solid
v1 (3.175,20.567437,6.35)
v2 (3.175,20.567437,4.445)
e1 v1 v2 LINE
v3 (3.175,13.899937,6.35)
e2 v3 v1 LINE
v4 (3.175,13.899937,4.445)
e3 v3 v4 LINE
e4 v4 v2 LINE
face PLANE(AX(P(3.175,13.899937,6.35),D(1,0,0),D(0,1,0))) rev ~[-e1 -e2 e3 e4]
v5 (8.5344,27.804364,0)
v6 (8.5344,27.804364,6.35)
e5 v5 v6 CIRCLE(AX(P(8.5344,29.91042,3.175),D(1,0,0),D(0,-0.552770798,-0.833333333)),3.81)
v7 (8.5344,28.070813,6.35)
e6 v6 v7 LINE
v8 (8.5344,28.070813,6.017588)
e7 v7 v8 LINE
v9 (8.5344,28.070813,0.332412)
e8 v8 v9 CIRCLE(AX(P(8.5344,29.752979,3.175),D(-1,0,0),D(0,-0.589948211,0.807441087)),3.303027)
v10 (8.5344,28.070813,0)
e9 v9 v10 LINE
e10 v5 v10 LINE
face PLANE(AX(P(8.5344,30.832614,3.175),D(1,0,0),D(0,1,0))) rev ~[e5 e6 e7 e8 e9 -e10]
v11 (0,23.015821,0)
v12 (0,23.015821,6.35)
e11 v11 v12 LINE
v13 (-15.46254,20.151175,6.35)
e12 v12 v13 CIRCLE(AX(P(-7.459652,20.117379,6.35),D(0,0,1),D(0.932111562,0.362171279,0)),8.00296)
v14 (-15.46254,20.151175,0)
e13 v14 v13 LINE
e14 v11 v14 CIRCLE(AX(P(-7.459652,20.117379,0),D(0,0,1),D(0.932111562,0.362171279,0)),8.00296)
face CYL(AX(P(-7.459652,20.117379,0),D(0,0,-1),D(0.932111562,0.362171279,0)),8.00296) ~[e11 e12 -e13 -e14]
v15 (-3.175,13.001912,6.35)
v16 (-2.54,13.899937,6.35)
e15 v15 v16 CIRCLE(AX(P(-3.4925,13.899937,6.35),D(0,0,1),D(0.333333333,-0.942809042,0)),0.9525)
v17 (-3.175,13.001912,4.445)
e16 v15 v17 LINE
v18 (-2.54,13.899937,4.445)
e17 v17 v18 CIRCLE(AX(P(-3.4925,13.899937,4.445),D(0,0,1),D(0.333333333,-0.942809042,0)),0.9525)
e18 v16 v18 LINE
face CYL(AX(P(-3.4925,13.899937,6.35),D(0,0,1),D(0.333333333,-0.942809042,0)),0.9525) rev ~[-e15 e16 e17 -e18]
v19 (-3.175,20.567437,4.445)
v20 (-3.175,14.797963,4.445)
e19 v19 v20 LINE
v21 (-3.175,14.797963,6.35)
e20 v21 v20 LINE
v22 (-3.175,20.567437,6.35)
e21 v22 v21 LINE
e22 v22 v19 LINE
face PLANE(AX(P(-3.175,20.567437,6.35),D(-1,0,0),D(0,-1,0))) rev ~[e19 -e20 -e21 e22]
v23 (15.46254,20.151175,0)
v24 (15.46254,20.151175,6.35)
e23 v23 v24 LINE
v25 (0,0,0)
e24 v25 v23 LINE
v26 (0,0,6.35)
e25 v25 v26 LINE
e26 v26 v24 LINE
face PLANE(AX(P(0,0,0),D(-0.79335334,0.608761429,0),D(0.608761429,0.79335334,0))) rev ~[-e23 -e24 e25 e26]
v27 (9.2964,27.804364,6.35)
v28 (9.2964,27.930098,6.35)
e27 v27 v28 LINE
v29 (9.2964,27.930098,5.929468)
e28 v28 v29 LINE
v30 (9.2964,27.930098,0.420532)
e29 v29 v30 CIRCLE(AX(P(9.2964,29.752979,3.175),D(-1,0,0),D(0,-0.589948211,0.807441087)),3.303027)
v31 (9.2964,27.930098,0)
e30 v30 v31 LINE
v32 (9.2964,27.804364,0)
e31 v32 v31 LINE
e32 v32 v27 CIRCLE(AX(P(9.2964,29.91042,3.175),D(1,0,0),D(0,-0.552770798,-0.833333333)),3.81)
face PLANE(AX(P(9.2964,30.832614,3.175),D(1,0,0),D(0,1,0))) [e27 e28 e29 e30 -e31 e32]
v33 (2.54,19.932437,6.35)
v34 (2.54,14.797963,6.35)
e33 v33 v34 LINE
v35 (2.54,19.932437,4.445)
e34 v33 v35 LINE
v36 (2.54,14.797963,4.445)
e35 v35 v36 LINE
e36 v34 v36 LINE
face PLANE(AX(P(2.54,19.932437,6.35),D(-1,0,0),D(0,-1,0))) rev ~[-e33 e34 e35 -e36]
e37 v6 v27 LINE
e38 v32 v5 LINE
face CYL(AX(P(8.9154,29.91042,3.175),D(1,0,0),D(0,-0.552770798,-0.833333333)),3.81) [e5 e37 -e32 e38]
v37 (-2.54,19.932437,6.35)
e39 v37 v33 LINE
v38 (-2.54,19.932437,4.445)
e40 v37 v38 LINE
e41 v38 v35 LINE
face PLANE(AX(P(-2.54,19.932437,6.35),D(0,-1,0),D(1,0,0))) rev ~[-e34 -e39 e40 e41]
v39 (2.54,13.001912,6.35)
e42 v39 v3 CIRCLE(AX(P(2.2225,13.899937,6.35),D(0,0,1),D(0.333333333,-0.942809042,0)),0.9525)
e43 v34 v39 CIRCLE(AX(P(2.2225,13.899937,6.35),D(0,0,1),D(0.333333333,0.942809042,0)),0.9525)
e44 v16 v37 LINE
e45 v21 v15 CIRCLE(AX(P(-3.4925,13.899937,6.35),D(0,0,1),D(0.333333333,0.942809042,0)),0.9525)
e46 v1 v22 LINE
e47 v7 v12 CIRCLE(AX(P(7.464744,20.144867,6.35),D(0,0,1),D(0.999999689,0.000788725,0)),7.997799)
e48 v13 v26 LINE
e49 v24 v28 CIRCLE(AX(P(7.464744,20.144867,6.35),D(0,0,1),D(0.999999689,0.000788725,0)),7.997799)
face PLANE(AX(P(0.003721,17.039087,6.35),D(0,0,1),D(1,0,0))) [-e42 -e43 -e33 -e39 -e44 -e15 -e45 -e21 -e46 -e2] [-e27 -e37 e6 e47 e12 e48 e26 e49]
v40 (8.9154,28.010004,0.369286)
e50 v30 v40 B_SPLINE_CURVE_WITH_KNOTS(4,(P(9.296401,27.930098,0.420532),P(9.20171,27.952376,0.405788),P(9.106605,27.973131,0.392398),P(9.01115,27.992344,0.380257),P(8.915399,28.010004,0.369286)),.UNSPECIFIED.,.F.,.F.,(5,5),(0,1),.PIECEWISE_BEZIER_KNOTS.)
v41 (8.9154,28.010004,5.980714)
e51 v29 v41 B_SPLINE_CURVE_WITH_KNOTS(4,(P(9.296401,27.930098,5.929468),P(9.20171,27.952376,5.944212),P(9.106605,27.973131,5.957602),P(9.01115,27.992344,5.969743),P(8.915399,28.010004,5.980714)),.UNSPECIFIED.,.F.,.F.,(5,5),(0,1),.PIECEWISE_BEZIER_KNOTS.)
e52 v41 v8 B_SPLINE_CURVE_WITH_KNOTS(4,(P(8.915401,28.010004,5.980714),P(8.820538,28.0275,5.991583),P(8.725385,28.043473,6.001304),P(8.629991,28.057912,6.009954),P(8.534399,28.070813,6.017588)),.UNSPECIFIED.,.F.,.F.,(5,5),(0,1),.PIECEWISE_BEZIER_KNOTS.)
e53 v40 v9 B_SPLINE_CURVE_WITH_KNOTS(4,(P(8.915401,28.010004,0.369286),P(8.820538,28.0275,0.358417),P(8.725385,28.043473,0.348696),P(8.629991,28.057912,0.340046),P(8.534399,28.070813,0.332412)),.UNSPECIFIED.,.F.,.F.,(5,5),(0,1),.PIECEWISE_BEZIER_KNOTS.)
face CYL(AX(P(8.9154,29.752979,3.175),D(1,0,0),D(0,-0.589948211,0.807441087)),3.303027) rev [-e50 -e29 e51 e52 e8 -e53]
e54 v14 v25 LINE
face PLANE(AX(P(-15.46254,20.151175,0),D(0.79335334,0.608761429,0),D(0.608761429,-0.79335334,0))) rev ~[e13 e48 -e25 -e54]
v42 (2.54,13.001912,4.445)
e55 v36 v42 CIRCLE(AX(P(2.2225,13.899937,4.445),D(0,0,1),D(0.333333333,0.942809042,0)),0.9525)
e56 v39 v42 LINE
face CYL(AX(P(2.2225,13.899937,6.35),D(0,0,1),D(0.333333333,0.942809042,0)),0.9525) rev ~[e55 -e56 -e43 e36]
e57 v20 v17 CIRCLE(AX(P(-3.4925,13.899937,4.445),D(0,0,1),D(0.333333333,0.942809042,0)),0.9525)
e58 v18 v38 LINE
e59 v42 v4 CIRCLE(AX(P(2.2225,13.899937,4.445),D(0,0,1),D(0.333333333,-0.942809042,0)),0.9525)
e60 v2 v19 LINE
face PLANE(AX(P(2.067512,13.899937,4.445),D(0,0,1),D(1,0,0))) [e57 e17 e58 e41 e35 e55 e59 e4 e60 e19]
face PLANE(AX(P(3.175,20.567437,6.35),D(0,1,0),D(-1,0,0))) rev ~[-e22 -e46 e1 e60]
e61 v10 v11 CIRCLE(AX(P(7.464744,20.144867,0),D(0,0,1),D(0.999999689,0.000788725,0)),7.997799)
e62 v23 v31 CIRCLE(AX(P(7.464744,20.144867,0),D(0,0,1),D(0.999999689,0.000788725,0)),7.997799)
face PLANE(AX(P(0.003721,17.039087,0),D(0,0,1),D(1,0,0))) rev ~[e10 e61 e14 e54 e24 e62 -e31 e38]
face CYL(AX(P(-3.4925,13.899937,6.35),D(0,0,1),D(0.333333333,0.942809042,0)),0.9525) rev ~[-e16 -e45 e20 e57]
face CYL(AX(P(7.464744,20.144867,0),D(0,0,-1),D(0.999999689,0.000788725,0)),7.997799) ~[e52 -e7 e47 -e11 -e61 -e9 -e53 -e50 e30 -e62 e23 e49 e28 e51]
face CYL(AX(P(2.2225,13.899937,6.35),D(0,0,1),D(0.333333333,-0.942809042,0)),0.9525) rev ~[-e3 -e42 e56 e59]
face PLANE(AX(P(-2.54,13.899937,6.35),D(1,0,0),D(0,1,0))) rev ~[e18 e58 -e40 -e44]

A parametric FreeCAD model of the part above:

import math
import FreeCAD as App
import Part
import Sketcher
from FreeCAD import Vector
Q = App.Units.Quantity

doc = App.newDocument("Part")
params = doc.addObject("Spreadsheet::Sheet", "Params")
for row, (alias, value) in enumerate([
    ("sketch1_length", "1 in"),
    ("sketch1_length2", "1 in"),
    ("pad1_length", "0.25 in"),
    ("sketch2_width", "0.2 in"),
    ("sketch2_width2", "0.25 in"),
    ("pocket1_length", "0.075 in"),
    ("sketch3_radius", "0.15 in"),
    ("sketch3_height", "0.02 in"),
    ("pad2_length", "0.015 in"),
    ("sketch4_radius", "0.15 in"),
    ("sketch4_height", "0.02 in"),
    ("pad3_length", "0.015 in"),
], start=1):
    params.set(f"A{row}", alias)
    params.set(f"B{row}", "=" + value)
    params.setAlias(f"B{row}", alias)

body = doc.addObject("PartDesign::Body", "Body")

# Sketch on XY plane
sketch1 = doc.addObject("Sketcher::SketchObject", "Sketch")
body.addObject(sketch1)
sketch1.AttachmentSupport = (doc.XY_Plane, [""])
sketch1.MapMode = "FlatFace"
sketch1.addGeometry([
    Part.LineSegment(Vector(-15.46254, 20.151175, 0), Vector(0, 0, 0)),
    Part.LineSegment(Vector(0, 0, 0), Vector(15.46254, 20.151175, 0)),
    Part.ArcOfCircle(Part.Circle(Vector(7.464744, 20.144867, 0), Vector(0, 0, 1), 7.997799), math.radians(0.045191), math.radians(158.963163)),
    Part.ArcOfCircle(Part.Circle(Vector(-7.459652, 20.117379, 0), Vector(0, 0, 1), 8.00296), math.radians(21.233602), math.radians(179.758044)),
], False)
sketch1.addConstraint([
    Sketcher.Constraint("Coincident", 0, 2, 1, 1),
    Sketcher.Constraint("Coincident", 1, 2, 2, 1),
    Sketcher.Constraint("Coincident", 2, 2, 3, 1),
    Sketcher.Constraint("Coincident", 3, 2, 0, 1),
    Sketcher.Constraint("Coincident", 0, 2, -1, 1),
    Sketcher.Constraint("PointOnObject", 2, 2, -2),
    Sketcher.Constraint("Distance", 0, Q("1 in")),
    Sketcher.Constraint("Distance", 1, Q("1 in")),
    Sketcher.Constraint("Radius", 2, Q("7.997799 mm")),
    Sketcher.Constraint("Radius", 3, Q("8.00296 mm")),
    Sketcher.Constraint("DistanceX", 3, 3, -1, 1, Q("7.459652 mm")),
    Sketcher.Constraint("DistanceY", -1, 1, 3, 3, Q("20.117379 mm")),
    Sketcher.Constraint("DistanceX", -1, 1, 1, 2, Q("15.46254 mm")),
])
sketch1.setExpression("Constraints[6]", "Params.sketch1_length")
sketch1.setExpression("Constraints[7]", "Params.sketch1_length2")
pad1 = doc.addObject("PartDesign::Pad", "Pad")
body.addObject(pad1)
pad1.Profile = sketch1
pad1.setExpression("Length", "Params.pad1_length")

# Sketch on XY plane
sketch2 = doc.addObject("Sketcher::SketchObject", "Sketch001")
body.addObject(sketch2)
sketch2.AttachmentSupport = (doc.XY_Plane, [""])
sketch2.MapMode = "FlatFace"
sketch2.AttachmentOffset = App.Placement(Vector(0, 0, 0.25 * 25.4), App.Rotation())
sketch2.addGeometry([
    Part.ArcOfCircle(Part.Circle(Vector(2.2225, 13.899937, 0), Vector(0, 0, 1), 0.9525), math.radians(70.528779), math.radians(289.471221)),  # 0
    Part.ArcOfCircle(Part.Circle(Vector(2.2225, 13.899937, 0), Vector(0, 0, 1), 0.9525), math.radians(-70.528779), math.radians(0)),  # 1
    Part.LineSegment(Vector(3.175, 13.899937, 0), Vector(3.175, 20.567437, 0)),  # 2
    Part.LineSegment(Vector(3.175, 20.567437, 0), Vector(-3.175, 20.567437, 0)),  # 3
    Part.LineSegment(Vector(-3.175, 20.567437, 0), Vector(-3.175, 14.797963, 0)),  # 4
    Part.ArcOfCircle(Part.Circle(Vector(-3.4925, 13.899937, 0), Vector(0, 0, 1), 0.9525), math.radians(70.528779), math.radians(289.471221)),  # 5
    Part.ArcOfCircle(Part.Circle(Vector(-3.4925, 13.899937, 0), Vector(0, 0, 1), 0.9525), math.radians(-70.528779), math.radians(0)),  # 6
    Part.LineSegment(Vector(-2.54, 13.899937, 0), Vector(-2.54, 19.932437, 0)),  # 7
    Part.LineSegment(Vector(-2.54, 19.932437, 0), Vector(2.54, 19.932437, 0)),  # 8
    Part.LineSegment(Vector(2.54, 19.932437, 0), Vector(2.54, 14.797963, 0)),  # 9
], False)
sketch2.addConstraint([
    Sketcher.Constraint("Tangent", 0, 2, 1, 1),
    Sketcher.Constraint("Tangent", 1, 2, 2, 1),
    Sketcher.Constraint("Coincident", 2, 2, 3, 1),
    Sketcher.Constraint("Coincident", 3, 2, 4, 1),
    Sketcher.Constraint("Coincident", 4, 2, 5, 1),
    Sketcher.Constraint("Tangent", 5, 2, 6, 1),
    Sketcher.Constraint("Tangent", 6, 2, 7, 1),
    Sketcher.Constraint("Coincident", 7, 2, 8, 1),
    Sketcher.Constraint("Coincident", 8, 2, 9, 1),
    Sketcher.Constraint("Coincident", 9, 2, 0, 1),
    Sketcher.Constraint("Vertical", 2),
    Sketcher.Constraint("Horizontal", 3),
    Sketcher.Constraint("Vertical", 4),
    Sketcher.Constraint("Vertical", 7),
    Sketcher.Constraint("Horizontal", 8),
    Sketcher.Constraint("Vertical", 9),
    Sketcher.Constraint("Equal", 0, 1),
    Sketcher.Constraint("Equal", 1, 5),
    Sketcher.Constraint("Equal", 5, 6),
    Sketcher.Constraint("Horizontal", 1, 3, 5, 3),
    Sketcher.Constraint("Horizontal", 0, 2, 5, 2),
    Sketcher.Constraint("Horizontal", 4, 2, 9, 2),
    Sketcher.Constraint("Vertical", 4, 2, 5, 2),
    Sketcher.Constraint("DistanceX", 8, 1, 8, 2, Q("0.2 in")),
    Sketcher.Constraint("DistanceX", 3, 2, 3, 1, Q("0.25 in")),
    Sketcher.Constraint("DistanceX", -1, 1, 0, 2, Q("0.1 in")),
    Sketcher.Constraint("Radius", 0, Q("0.0375 in")),
    Sketcher.Constraint("DistanceY", 2, 1, 2, 2, Q("0.2625 in")),
    Sketcher.Constraint("DistanceY", 7, 1, 7, 2, Q("0.2375 in")),
    Sketcher.Constraint("DistanceY", -1, 1, 0, 2, Q("13.001912 mm")),
])
sketch2.setExpression("Constraints[23]", "Params.sketch2_width")
sketch2.setExpression("Constraints[24]", "Params.sketch2_width2")
pocket1 = doc.addObject("PartDesign::Pocket", "Pocket")
body.addObject(pocket1)
pocket1.Profile = sketch2
pocket1.setExpression("Length", "Params.pocket1_length")

# Sketch on YZ plane
sketch3 = doc.addObject("Sketcher::SketchObject", "Sketch002")
body.addObject(sketch3)
sketch3.AttachmentSupport = (doc.YZ_Plane, [""])
sketch3.MapMode = "FlatFace"
sketch3.AttachmentOffset = App.Placement(Vector(0, 0, 0.351 * 25.4), App.Rotation())
sketch3.addGeometry([
    Part.ArcOfCircle(Part.Circle(Vector(29.91042, 3.175, 0), Vector(0, 0, 1), 3.81), math.radians(-123.55731), math.radians(123.55731)),
    Part.LineSegment(Vector(27.804364, 6.35, 0), Vector(27.804364, 5.842, 0)),
    Part.ArcOfCircle(Part.Circle(Vector(29.752979, 3.175, 0), Vector(0, 0, 1), 3.303027), math.radians(-126.153333), math.radians(126.153333)),
    Part.LineSegment(Vector(27.804364, 0.508, 0), Vector(27.804364, 0, 0)),
], False)
sketch3.addConstraint([
    Sketcher.Constraint("Coincident", 0, 2, 1, 1),
    Sketcher.Constraint("Coincident", 1, 2, 2, 2),
    Sketcher.Constraint("Coincident", 2, 1, 3, 1),
    Sketcher.Constraint("Coincident", 3, 2, 0, 1),
    Sketcher.Constraint("Vertical", 1),
    Sketcher.Constraint("Vertical", 3),
    Sketcher.Constraint("PointOnObject", 3, 2, -1),
    Sketcher.Constraint("Horizontal", 0, 3, 2, 3),
    Sketcher.Constraint("Vertical", 1, 2, 2, 1),
    Sketcher.Constraint("Radius", 0, Q("0.15 in")),
    Sketcher.Constraint("DistanceY", 1, 2, 1, 1, Q("0.02 in")),
    Sketcher.Constraint("DistanceY", -1, 1, 0, 2, Q("0.25 in")),
    Sketcher.Constraint("Radius", 2, Q("3.303027 mm")),
    Sketcher.Constraint("DistanceX", -1, 1, 0, 3, Q("29.91042 mm")),
])
sketch3.setExpression("Constraints[9]", "Params.sketch3_radius")
sketch3.setExpression("Constraints[10]", "Params.sketch3_height")
pad2 = doc.addObject("PartDesign::Pad", "Pad001")
body.addObject(pad2)
pad2.Profile = sketch3
pad2.setExpression("Length", "Params.pad2_length")

# Sketch on YZ plane
sketch4 = doc.addObject("Sketcher::SketchObject", "Sketch003")
body.addObject(sketch4)
sketch4.AttachmentSupport = (doc.YZ_Plane, [""])
sketch4.MapMode = "FlatFace"
sketch4.AttachmentOffset = App.Placement(Vector(0, 0, 0.351 * 25.4), App.Rotation())
sketch4.addGeometry([
    Part.ArcOfCircle(Part.Circle(Vector(29.91042, 3.175, 0), Vector(0, 0, 1), 3.81), math.radians(-123.55731), math.radians(123.55731)),
    Part.LineSegment(Vector(27.804364, 6.35, 0), Vector(27.804364, 5.842, 0)),
    Part.ArcOfCircle(Part.Circle(Vector(29.752979, 3.175, 0), Vector(0, 0, 1), 3.303027), math.radians(-126.153333), math.radians(126.153333)),
    Part.LineSegment(Vector(27.804364, 0.508, 0), Vector(27.804364, 0, 0)),
], False)
sketch4.addConstraint([
    Sketcher.Constraint("Coincident", 0, 2, 1, 1),
    Sketcher.Constraint("Coincident", 1, 2, 2, 2),
    Sketcher.Constraint("Coincident", 2, 1, 3, 1),
    Sketcher.Constraint("Coincident", 3, 2, 0, 1),
    Sketcher.Constraint("Vertical", 1),
    Sketcher.Constraint("Vertical", 3),
    Sketcher.Constraint("PointOnObject", 3, 2, -1),
    Sketcher.Constraint("Horizontal", 0, 3, 2, 3),
    Sketcher.Constraint("Vertical", 1, 2, 2, 1),
    Sketcher.Constraint("Radius", 0, Q("0.15 in")),
    Sketcher.Constraint("DistanceY", 1, 2, 1, 1, Q("0.02 in")),
    Sketcher.Constraint("DistanceY", -1, 1, 0, 2, Q("0.25 in")),
    Sketcher.Constraint("Radius", 2, Q("3.303027 mm")),
    Sketcher.Constraint("DistanceX", -1, 1, 0, 3, Q("29.91042 mm")),
])
sketch4.setExpression("Constraints[9]", "Params.sketch4_radius")
sketch4.setExpression("Constraints[10]", "Params.sketch4_height")
pad3 = doc.addObject("PartDesign::Pad", "Pad002")
body.addObject(pad3)
pad3.Profile = sketch4
pad3.setExpression("Length", "Params.pad3_length")
pad3.Reversed = True

doc.recompute()
